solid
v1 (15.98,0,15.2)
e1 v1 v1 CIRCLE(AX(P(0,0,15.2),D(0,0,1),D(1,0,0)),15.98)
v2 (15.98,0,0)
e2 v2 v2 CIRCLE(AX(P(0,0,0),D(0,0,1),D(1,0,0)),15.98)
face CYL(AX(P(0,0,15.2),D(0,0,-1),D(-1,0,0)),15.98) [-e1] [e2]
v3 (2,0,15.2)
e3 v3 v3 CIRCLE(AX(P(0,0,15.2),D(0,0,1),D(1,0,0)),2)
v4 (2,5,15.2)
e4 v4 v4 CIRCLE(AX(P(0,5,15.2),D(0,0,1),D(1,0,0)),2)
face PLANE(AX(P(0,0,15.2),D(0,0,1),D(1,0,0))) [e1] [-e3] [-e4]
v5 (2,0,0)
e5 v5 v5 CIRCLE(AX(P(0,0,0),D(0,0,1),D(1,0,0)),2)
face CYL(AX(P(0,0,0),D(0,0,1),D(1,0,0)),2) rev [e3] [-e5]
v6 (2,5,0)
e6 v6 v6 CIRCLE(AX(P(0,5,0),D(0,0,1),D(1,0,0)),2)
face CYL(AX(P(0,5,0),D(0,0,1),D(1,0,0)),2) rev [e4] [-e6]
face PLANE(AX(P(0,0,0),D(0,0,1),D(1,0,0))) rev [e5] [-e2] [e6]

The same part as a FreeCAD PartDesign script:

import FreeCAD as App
import Part
import Sketcher
Q = App.Units.Quantity

doc = App.newDocument("Part")
params = doc.addObject("Spreadsheet::Sheet", "Params")
for row, (alias, value) in enumerate([
    ("sketch1_diameter", "31.96 mm"),
    ("pad1_length", "15.2 mm"),
    ("sketch2_diameter", "4 mm"),
    ("sketch3_diameter", "4 mm"),
], start=1):
    params.set(f"A{row}", alias)
    params.set(f"B{row}", "=" + value)
    params.setAlias(f"B{row}", alias)

body = doc.addObject("PartDesign::Body", "Body")

# Sketch on XY plane
sketch1 = body.newObject("Sketcher::SketchObject", "Sketch")
sketch1.AttachmentSupport = (doc.getObject("XY_Plane"), [""])
sketch1.MapMode = "FlatFace"
sketch1.addGeometry(Part.Circle(App.Vector(0, 0, 0), App.Vector(0, 0, 1), 16), False)
sketch1.addConstraint(Sketcher.Constraint("Coincident", 0, 3, -1, 1))
sketch1.addConstraint(Sketcher.Constraint("Diameter", 0, Q("31.96 mm")))
sketch1.setExpression("Constraints[1]", "Params.sketch1_diameter")
pad1 = body.newObject("PartDesign::Pad", "Pad")
pad1.Profile = sketch1
pad1.setExpression("Length", "Params.pad1_length")

# Sketch on XY plane
sketch2 = body.newObject("Sketcher::SketchObject", "Sketch001")
sketch2.AttachmentSupport = (doc.getObject("XY_Plane"), [""])
sketch2.MapMode = "FlatFace"
sketch2.AttachmentOffset = App.Placement(App.Vector(0, 0, 15.2), App.Rotation())
sketch2.addGeometry(Part.Circle(App.Vector(0, 0, 0), App.Vector(0, 0, 1), 2), False)
sketch2.addConstraint(Sketcher.Constraint("Coincident", 0, 3, -1, 1))
sketch2.addConstraint(Sketcher.Constraint("Diameter", 0, Q("4 mm")))
sketch2.setExpression("Constraints[1]", "Params.sketch2_diameter")
pocket1 = body.newObject("PartDesign::Pocket", "Pocket")
pocket1.Profile = sketch2
pocket1.Type = "ThroughAll"

# Sketch on XY plane
sketch3 = body.newObject("Sketcher::SketchObject", "Sketch002")
sketch3.AttachmentSupport = (doc.getObject("XY_Plane"), [""])
sketch3.MapMode = "FlatFace"
sketch3.AttachmentOffset = App.Placement(App.Vector(0, 0, 15.2), App.Rotation())
sketch3.addGeometry(Part.Circle(App.Vector(0, 5, 0), App.Vector(0, 0, 1), 2), False)
sketch3.addConstraint(Sketcher.Constraint("PointOnObject", 0, 3, -2))
sketch3.addConstraint(Sketcher.Constraint("Diameter", 0, Q("4 mm")))
sketch3.addConstraint(Sketcher.Constraint("DistanceY", -1, 1, 0, 3, Q("5 mm")))
sketch3.setExpression("Constraints[1]", "Params.sketch3_diameter")
pocket2 = body.newObject("PartDesign::Pocket", "Pocket001")
pocket2.Profile = sketch3
pocket2.Type = "ThroughAll"

doc.recompute()
